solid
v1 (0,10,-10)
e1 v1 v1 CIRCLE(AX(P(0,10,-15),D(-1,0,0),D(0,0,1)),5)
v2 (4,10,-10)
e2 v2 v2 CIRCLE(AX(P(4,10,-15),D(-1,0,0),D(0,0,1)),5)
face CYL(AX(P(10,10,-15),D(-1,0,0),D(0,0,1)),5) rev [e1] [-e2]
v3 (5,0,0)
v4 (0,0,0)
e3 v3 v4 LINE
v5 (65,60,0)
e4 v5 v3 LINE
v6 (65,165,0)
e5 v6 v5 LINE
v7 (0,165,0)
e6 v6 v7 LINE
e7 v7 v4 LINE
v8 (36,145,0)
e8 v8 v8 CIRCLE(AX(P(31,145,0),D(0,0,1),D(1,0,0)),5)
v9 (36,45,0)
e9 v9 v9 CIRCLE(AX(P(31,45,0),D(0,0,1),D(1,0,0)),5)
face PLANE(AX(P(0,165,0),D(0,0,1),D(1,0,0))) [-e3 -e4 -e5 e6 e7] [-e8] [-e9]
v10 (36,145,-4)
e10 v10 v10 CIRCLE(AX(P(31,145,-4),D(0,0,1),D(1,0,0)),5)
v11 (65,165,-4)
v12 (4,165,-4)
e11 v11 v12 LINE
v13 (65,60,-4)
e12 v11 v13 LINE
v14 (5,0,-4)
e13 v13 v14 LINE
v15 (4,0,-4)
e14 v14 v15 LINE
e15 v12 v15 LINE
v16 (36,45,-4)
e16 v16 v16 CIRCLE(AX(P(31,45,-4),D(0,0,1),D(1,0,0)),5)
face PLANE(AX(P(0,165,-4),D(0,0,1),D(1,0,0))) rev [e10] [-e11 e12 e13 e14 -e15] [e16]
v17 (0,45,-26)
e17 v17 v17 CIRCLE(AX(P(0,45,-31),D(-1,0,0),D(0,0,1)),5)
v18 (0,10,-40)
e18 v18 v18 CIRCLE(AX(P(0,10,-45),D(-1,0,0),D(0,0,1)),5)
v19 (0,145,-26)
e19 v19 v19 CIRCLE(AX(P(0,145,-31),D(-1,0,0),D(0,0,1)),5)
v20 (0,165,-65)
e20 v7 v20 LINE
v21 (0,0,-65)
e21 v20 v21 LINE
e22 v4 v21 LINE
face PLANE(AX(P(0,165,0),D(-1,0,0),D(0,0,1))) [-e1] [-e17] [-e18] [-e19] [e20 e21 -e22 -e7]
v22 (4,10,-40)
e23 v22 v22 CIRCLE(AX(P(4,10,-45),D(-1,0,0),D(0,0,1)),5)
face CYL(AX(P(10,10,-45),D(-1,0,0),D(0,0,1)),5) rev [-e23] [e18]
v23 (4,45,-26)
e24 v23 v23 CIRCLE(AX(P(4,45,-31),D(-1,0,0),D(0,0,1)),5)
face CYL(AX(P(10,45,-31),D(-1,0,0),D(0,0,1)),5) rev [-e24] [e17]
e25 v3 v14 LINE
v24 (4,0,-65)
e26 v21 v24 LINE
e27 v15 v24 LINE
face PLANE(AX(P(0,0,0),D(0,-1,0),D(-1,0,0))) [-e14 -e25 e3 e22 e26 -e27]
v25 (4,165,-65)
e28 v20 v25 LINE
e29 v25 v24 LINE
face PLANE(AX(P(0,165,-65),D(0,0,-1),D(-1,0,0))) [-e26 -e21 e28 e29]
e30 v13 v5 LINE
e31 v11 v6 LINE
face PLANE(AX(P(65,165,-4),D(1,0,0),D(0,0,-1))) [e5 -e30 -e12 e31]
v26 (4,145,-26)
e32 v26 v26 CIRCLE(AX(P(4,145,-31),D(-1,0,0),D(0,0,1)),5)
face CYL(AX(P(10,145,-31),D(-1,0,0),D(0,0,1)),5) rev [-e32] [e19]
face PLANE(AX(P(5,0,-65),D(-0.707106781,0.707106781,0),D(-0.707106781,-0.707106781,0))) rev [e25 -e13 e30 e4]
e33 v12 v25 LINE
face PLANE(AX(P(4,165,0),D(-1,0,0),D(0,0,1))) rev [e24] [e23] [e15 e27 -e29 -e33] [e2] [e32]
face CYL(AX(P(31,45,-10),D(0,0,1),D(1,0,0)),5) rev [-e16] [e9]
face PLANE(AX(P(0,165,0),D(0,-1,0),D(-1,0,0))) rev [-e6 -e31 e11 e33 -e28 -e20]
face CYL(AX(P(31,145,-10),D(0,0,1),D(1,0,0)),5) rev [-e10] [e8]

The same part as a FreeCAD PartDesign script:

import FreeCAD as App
import Part
import Sketcher

V = App.Vector
Q = App.Units.Quantity


def add_polygon(sketch, points):
    """Adds a closed chain of lines whose ends are joined by coincident constraints."""
    first, n = sketch.GeometryCount, len(points)
    for a, b in zip(points, points[1:] + points[:1]):
        sketch.addGeometry(Part.LineSegment(App.Vector(*a, 0), App.Vector(*b, 0)), False)
    for i in range(n):
        sketch.addConstraint(Sketcher.Constraint("Coincident", first + i, 2, first + (i + 1) % n, 1))

doc = App.newDocument("Part")
params = doc.addObject("Spreadsheet::Sheet", "Params")
for row, (alias, value) in enumerate([
    ("sketch1_width", "65 mm"),
    ("sketch1_width2", "61 mm"),
    ("pad1_length", "165 mm"),
    ("sketch2_diameter", "10 mm"),
    ("pocket1_length", "10 mm"),
    ("sketch3_diameter", "10 mm"),
    ("pocket2_length", "10 mm"),
    ("sketch4_width", "60 mm"),
], start=1):
    params.set(f"A{row}", alias)
    params.set(f"B{row}", "=" + value)
    params.setAlias(f"B{row}", alias)

body = doc.addObject("PartDesign::Body", "Body")

sketch1 = body.newObject("Sketcher::SketchObject", "Sketch")
sketch1.AttachmentSupport = (doc.getObject("XZ_Plane"), [""])
sketch1.MapMode = "FlatFace"
add_polygon(sketch1, [(0, -65), (0, 0), (65, 0), (65, -4), (4, -4), (4, -65)])
sketch1.addConstraint([
    Sketcher.Constraint("Vertical", 0),
    Sketcher.Constraint("Horizontal", 1),
    Sketcher.Constraint("Vertical", 2),
    Sketcher.Constraint("Horizontal", 3),
    Sketcher.Constraint("Vertical", 4),
    Sketcher.Constraint("Horizontal", 5),
    Sketcher.Constraint("Coincident", 0, 2, -1, 1),
    Sketcher.Constraint("Equal", 1, 0),
    Sketcher.Constraint("Equal", 5, 2),
    Sketcher.Constraint("DistanceX", 1, 1, 1, 2, Q("65 mm")),
    Sketcher.Constraint("DistanceX", 3, 2, 3, 1, Q("61 mm")),
])
sketch1.setExpression("Constraints[15]", "Params.sketch1_width")
sketch1.setExpression("Constraints[16]", "Params.sketch1_width2")
pad1 = body.newObject("PartDesign::Pad", "Pad")
pad1.Profile = sketch1
pad1.setExpression("Length", "Params.pad1_length")
pad1.Reversed = True

sketch2 = body.newObject("Sketcher::SketchObject", "Sketch001")
sketch2.AttachmentSupport = (doc.getObject("XY_Plane"), [""])
sketch2.MapMode = "FlatFace"
sketch2.addGeometry([
    Part.Circle(V(31, 145, 0), V(0, 0, 1), 5),
    Part.Circle(V(31, 45, 0), V(0, 0, 1), 5),
], False)
sketch2.addConstraint([
    Sketcher.Constraint("Equal", 0, 1),
    Sketcher.Constraint("Vertical", 0, 3, 1, 3),
    Sketcher.Constraint("Diameter", 0, Q("10 mm")),
    Sketcher.Constraint("DistanceX", -1, 1, 0, 3, Q("31 mm")),
    Sketcher.Constraint("DistanceY", -1, 1, 0, 3, Q("145 mm")),
    Sketcher.Constraint("DistanceY", -1, 1, 1, 3, Q("45 mm")),
])
sketch2.setExpression("Constraints[2]", "Params.sketch2_diameter")
pocket1 = body.newObject("PartDesign::Pocket", "Pocket")
pocket1.Profile = sketch2
pocket1.setExpression("Length", "Params.pocket1_length")

sketch3 = body.newObject("Sketcher::SketchObject", "Sketch002")
sketch3.AttachmentSupport = (doc.getObject("YZ_Plane"), [""])
sketch3.MapMode = "FlatFace"
sketch3.addGeometry([
    Part.Circle(V(145, -31, 0), V(0, 0, 1), 5),
    Part.Circle(V(45, -31, 0), V(0, 0, 1), 5),
    Part.Circle(V(10, -15, 0), V(0, 0, 1), 5),
    Part.Circle(V(10, -45, 0), V(0, 0, 1), 5),
], False)
sketch3.addConstraint([
    Sketcher.Constraint("Equal", 0, 1),
    Sketcher.Constraint("Equal", 1, 2),
    Sketcher.Constraint("Equal", 2, 3),
    Sketcher.Constraint("Horizontal", 0, 3, 1, 3),
    Sketcher.Constraint("Vertical", 2, 3, 3, 3),
    Sketcher.Constraint("Diameter", 0, Q("10 mm")),
    Sketcher.Constraint("DistanceX", -1, 1, 0, 3, Q("145 mm")),
    Sketcher.Constraint("DistanceY", 0, 3, -1, 1, Q("31 mm")),
    Sketcher.Constraint("DistanceX", -1, 1, 1, 3, Q("45 mm")),
    Sketcher.Constraint("DistanceX", -1, 1, 2, 3, Q("10 mm")),
    Sketcher.Constraint("DistanceY", 2, 3, -1, 1, Q("15 mm")),
    Sketcher.Constraint("DistanceY", 3, 3, -1, 1, Q("45 mm")),
])
sketch3.setExpression("Constraints[5]", "Params.sketch3_diameter")
pocket2 = body.newObject("PartDesign::Pocket", "Pocket001")
pocket2.Profile = sketch3
pocket2.setExpression("Length", "Params.pocket2_length")
pocket2.Reversed = True

sketch4 = body.newObject("Sketcher::SketchObject", "Sketch003")
sketch4.AttachmentSupport = (doc.getObject("XY_Plane"), [""])
sketch4.MapMode = "FlatFace"
add_polygon(sketch4, [(65, 60), (5, 0), (65, 0)])
sketch4.addConstraint([
    Sketcher.Constraint("Horizontal", 1),
    Sketcher.Constraint("Vertical", 2),
    Sketcher.Constraint("PointOnObject", 0, 2, -1),
    Sketcher.Constraint("Equal", 1, 2),
    Sketcher.Constraint("DistanceX", 1, 1, 1, 2, Q("60 mm")),
    Sketcher.Constraint("DistanceX", -1, 1, 0, 2, Q("5 mm")),
])
sketch4.setExpression("Constraints[7]", "Params.sketch4_width")
pocket3 = body.newObject("PartDesign::Pocket", "Pocket002")
pocket3.Profile = sketch4
pocket3.Type = "ThroughAll"

doc.recompute()
